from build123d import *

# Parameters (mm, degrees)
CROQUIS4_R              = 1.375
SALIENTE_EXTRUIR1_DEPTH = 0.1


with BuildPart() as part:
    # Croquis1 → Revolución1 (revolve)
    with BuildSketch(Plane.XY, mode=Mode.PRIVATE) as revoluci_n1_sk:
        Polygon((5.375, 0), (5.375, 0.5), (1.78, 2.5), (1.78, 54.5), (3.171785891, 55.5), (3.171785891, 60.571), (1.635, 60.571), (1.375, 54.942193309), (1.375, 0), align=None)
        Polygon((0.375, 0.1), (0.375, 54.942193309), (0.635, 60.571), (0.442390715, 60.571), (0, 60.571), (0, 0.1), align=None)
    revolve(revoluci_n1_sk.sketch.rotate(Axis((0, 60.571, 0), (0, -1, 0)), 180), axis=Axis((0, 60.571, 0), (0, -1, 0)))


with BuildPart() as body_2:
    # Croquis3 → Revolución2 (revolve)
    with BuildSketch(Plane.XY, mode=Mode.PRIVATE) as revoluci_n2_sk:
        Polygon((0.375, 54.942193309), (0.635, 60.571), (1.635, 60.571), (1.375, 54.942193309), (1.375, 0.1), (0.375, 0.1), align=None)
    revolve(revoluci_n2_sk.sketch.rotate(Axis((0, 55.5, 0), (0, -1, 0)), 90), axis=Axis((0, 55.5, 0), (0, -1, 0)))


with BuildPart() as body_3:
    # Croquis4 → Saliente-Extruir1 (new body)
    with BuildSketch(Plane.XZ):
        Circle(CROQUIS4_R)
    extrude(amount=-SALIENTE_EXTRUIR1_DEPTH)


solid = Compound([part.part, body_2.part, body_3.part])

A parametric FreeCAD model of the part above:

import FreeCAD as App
import Part
import Sketcher
Q = App.Units.Quantity

doc = App.newDocument("Part")
params = doc.addObject("Spreadsheet::Sheet", "Params")
for row, (alias, value) in enumerate([
    ("sketch1_width", "4 mm"),
    ("sketch1_height", "52 mm"),
    ("sketch1_height2", "0.5 mm"),
    ("revolution_angle", "360 deg"),
    ("sketch2_width", "1 mm"),
    ("revolution2_angle", "360 deg"),
    ("sketch3_diameter", "2.75 mm"),
    ("pad1_length", "0.1 mm"),
], start=1):
    params.set(f"A{row}", alias)
    params.set(f"B{row}", "=" + value)
    params.setAlias(f"B{row}", alias)

body = doc.addObject("PartDesign::Body", "Body")
body.AllowCompound = True

# Sketch on XY plane
sketch1 = doc.addObject("Sketcher::SketchObject", "Sketch")
body.addObject(sketch1)
sketch1.AttachmentSupport = (doc.XY_Plane, [""])
sketch1.MapMode = "FlatFace"
sketch1.addGeometry([
    Part.LineSegment(App.Vector(5.38, 0, 0), App.Vector(5.38, 0.5, 0)),  # 0
    Part.LineSegment(App.Vector(5.38, 0.5, 0), App.Vector(1.78, 2.5, 0)),  # 1
    Part.LineSegment(App.Vector(1.78, 2.5, 0), App.Vector(1.78, 54.5, 0)),  # 2
    Part.LineSegment(App.Vector(1.78, 54.5, 0), App.Vector(3.17, 55.5, 0)),  # 3
    Part.LineSegment(App.Vector(3.17, 55.5, 0), App.Vector(3.17, 60.57, 0)),  # 4
    Part.LineSegment(App.Vector(3.17, 60.57, 0), App.Vector(1.64, 60.57, 0)),  # 5
    Part.LineSegment(App.Vector(1.64, 60.57, 0), App.Vector(1.38, 54.94, 0)),  # 6
    Part.LineSegment(App.Vector(1.38, 54.94, 0), App.Vector(1.38, 0, 0)),  # 7
    Part.LineSegment(App.Vector(1.38, 0, 0), App.Vector(5.38, 0, 0)),  # 8
    Part.LineSegment(App.Vector(0.38, 0.1, 0), App.Vector(0.38, 54.94, 0)),  # 9
    Part.LineSegment(App.Vector(0.38, 54.94, 0), App.Vector(0.64, 60.57, 0)),  # 10
    Part.LineSegment(App.Vector(0.64, 60.57, 0), App.Vector(0, 60.57, 0)),  # 11
    Part.LineSegment(App.Vector(0, 60.57, 0), App.Vector(0, 0.1, 0)),  # 12
    Part.LineSegment(App.Vector(0, 0.1, 0), App.Vector(0.38, 0.1, 0)),  # 13
], False)
sketch1.addConstraint([
    Sketcher.Constraint("Coincident", 0, 2, 1, 1),
    Sketcher.Constraint("Coincident", 1, 2, 2, 1),
    Sketcher.Constraint("Coincident", 2, 2, 3, 1),
    Sketcher.Constraint("Coincident", 3, 2, 4, 1),
    Sketcher.Constraint("Coincident", 4, 2, 5, 1),
    Sketcher.Constraint("Coincident", 5, 2, 6, 1),
    Sketcher.Constraint("Coincident", 6, 2, 7, 1),
    Sketcher.Constraint("Coincident", 7, 2, 8, 1),
    Sketcher.Constraint("Coincident", 8, 2, 0, 1),
    Sketcher.Constraint("Coincident", 9, 2, 10, 1),
    Sketcher.Constraint("Coincident", 10, 2, 11, 1),
    Sketcher.Constraint("Coincident", 11, 2, 12, 1),
    Sketcher.Constraint("Coincident", 12, 2, 13, 1),
    Sketcher.Constraint("Coincident", 13, 2, 9, 1),
    Sketcher.Constraint("Vertical", 0),
    Sketcher.Constraint("Vertical", 2),
    Sketcher.Constraint("Vertical", 4),
    Sketcher.Constraint("Horizontal", 5),
    Sketcher.Constraint("Vertical", 7),
    Sketcher.Constraint("Horizontal", 8),
    Sketcher.Constraint("Vertical", 9),
    Sketcher.Constraint("Horizontal", 11),
    Sketcher.Constraint("Vertical", 12),
    Sketcher.Constraint("Horizontal", 13),
    Sketcher.Constraint("PointOnObject", 7, 2, -1),
    Sketcher.Constraint("PointOnObject", 11, 2, -2),
    Sketcher.Constraint("Parallel", 6, 10),
    Sketcher.Constraint("Horizontal", 6, 2, 9, 2),
    Sketcher.Constraint("Horizontal", 5, 2, 10, 2),
    Sketcher.Constraint("DistanceX", 8, 1, 8, 2, Q("4 mm")),
    Sketcher.Constraint("DistanceY", 2, 1, 2, 2, Q("52 mm")),
    Sketcher.Constraint("DistanceY", 0, 1, 0, 2, Q("0.5 mm")),
    Sketcher.Constraint("DistanceY", 0, 2, 1, 2, Q("2 mm")),
    Sketcher.Constraint("DistanceY", 2, 2, 3, 2, Q("1 mm")),
    Sketcher.Constraint("DistanceX", 9, 2, 6, 2, Q("1 mm")),
    Sketcher.Constraint("DistanceY", -1, 1, 12, 2, Q("0.1 mm")),
    Sketcher.Constraint("DistanceX", 11, 2, 11, 1, Q("0.635 mm")),
    Sketcher.Constraint("DistanceX", 13, 1, 13, 2, Q("0.375 mm")),
    Sketcher.Constraint("DistanceY", 4, 1, 4, 2, Q("5.071 mm")),
    Sketcher.Constraint("DistanceX", -1, 1, 1, 2, Q("1.78 mm")),
    Sketcher.Constraint("Distance", 6, Q("5.634808 mm")),
    Sketcher.Constraint("DistanceX", 5, 2, 5, 1, Q("1.536786 mm")),
])
sketch1.setExpression("Constraints[29]", "Params.sketch1_width")
sketch1.setExpression("Constraints[30]", "Params.sketch1_height")
sketch1.setExpression("Constraints[31]", "Params.sketch1_height2")
revolution = doc.addObject("PartDesign::Revolution", "Revolution")
body.addObject(revolution)
revolution.Profile = sketch1
revolution.ReferenceAxis = (sketch1, ["V_Axis"])
revolution.setExpression("Angle", "Params.revolution_angle")
body2 = doc.addObject("PartDesign::Body", "Body001")

# Sketch on XY plane
sketch2 = doc.addObject("Sketcher::SketchObject", "Sketch001")
body2.addObject(sketch2)
sketch2.AttachmentSupport = (doc.getObject("XY_Plane001"), [""])
sketch2.MapMode = "FlatFace"
sketch2.addGeometry([
    Part.LineSegment(App.Vector(0.6, 60.6, 0), App.Vector(0.4, 54.9, 0)),  # 0
    Part.LineSegment(App.Vector(0.4, 54.9, 0), App.Vector(0.4, 0.1, 0)),  # 1
    Part.LineSegment(App.Vector(0.4, 0.1, 0), App.Vector(1.4, 0.1, 0)),  # 2
    Part.LineSegment(App.Vector(1.4, 0.1, 0), App.Vector(1.4, 54.9, 0)),  # 3
    Part.LineSegment(App.Vector(1.4, 54.9, 0), App.Vector(1.6, 60.6, 0)),  # 4
    Part.LineSegment(App.Vector(1.6, 60.6, 0), App.Vector(0.6, 60.6, 0)),  # 5
], False)
sketch2.addConstraint([
    Sketcher.Constraint("Coincident", 0, 2, 1, 1),
    Sketcher.Constraint("Coincident", 1, 2, 2, 1),
    Sketcher.Constraint("Coincident", 2, 2, 3, 1),
    Sketcher.Constraint("Coincident", 3, 2, 4, 1),
    Sketcher.Constraint("Coincident", 4, 2, 5, 1),
    Sketcher.Constraint("Coincident", 5, 2, 0, 1),
    Sketcher.Constraint("Vertical", 1),
    Sketcher.Constraint("Horizontal", 2),
    Sketcher.Constraint("Vertical", 3),
    Sketcher.Constraint("Horizontal", 5),
    Sketcher.Constraint("Parallel", 0, 4),
    Sketcher.Constraint("Horizontal", 0, 2, 3, 2),
    Sketcher.Constraint("DistanceX", 2, 1, 2, 2, Q("1 mm")),
    Sketcher.Constraint("DistanceY", -1, 1, 1, 2, Q("0.1 mm")),
    Sketcher.Constraint("DistanceX", 3, 2, 4, 2, Q("0.26 mm")),
    Sketcher.Constraint("DistanceX", -1, 1, 0, 2, Q("0.375 mm")),
    Sketcher.Constraint("DistanceY", -1, 1, 4, 2, Q("60.571 mm")),
    Sketcher.Constraint("Distance", 0, Q("5.634808 mm")),
])
sketch2.setExpression("Constraints[12]", "Params.sketch2_width")
revolution2 = doc.addObject("PartDesign::Revolution", "Revolution001")
body2.addObject(revolution2)
revolution2.Profile = sketch2
revolution2.ReferenceAxis = (sketch2, ["V_Axis"])
revolution2.setExpression("Angle", "Params.revolution2_angle")
body3 = doc.addObject("PartDesign::Body", "Body002")

# Sketch on XZ plane
sketch3 = doc.addObject("Sketcher::SketchObject", "Sketch002")
body3.addObject(sketch3)
sketch3.AttachmentSupport = (doc.getObject("XZ_Plane002"), [""])
sketch3.MapMode = "FlatFace"
sketch3.addGeometry(Part.Circle(App.Vector(0, 0, 0), App.Vector(0, 0, 1), 1.4), False)
sketch3.addConstraint([
    Sketcher.Constraint("Coincident", 0, 3, -1, 1),
    Sketcher.Constraint("Diameter", 0, Q("2.75 mm")),
])
sketch3.setExpression("Constraints[1]", "Params.sketch3_diameter")
pad1 = doc.addObject("PartDesign::Pad", "Pad")
body3.addObject(pad1)
pad1.Profile = sketch3
pad1.setExpression("Length", "Params.pad1_length")
pad1.Reversed = True

doc.recompute()
